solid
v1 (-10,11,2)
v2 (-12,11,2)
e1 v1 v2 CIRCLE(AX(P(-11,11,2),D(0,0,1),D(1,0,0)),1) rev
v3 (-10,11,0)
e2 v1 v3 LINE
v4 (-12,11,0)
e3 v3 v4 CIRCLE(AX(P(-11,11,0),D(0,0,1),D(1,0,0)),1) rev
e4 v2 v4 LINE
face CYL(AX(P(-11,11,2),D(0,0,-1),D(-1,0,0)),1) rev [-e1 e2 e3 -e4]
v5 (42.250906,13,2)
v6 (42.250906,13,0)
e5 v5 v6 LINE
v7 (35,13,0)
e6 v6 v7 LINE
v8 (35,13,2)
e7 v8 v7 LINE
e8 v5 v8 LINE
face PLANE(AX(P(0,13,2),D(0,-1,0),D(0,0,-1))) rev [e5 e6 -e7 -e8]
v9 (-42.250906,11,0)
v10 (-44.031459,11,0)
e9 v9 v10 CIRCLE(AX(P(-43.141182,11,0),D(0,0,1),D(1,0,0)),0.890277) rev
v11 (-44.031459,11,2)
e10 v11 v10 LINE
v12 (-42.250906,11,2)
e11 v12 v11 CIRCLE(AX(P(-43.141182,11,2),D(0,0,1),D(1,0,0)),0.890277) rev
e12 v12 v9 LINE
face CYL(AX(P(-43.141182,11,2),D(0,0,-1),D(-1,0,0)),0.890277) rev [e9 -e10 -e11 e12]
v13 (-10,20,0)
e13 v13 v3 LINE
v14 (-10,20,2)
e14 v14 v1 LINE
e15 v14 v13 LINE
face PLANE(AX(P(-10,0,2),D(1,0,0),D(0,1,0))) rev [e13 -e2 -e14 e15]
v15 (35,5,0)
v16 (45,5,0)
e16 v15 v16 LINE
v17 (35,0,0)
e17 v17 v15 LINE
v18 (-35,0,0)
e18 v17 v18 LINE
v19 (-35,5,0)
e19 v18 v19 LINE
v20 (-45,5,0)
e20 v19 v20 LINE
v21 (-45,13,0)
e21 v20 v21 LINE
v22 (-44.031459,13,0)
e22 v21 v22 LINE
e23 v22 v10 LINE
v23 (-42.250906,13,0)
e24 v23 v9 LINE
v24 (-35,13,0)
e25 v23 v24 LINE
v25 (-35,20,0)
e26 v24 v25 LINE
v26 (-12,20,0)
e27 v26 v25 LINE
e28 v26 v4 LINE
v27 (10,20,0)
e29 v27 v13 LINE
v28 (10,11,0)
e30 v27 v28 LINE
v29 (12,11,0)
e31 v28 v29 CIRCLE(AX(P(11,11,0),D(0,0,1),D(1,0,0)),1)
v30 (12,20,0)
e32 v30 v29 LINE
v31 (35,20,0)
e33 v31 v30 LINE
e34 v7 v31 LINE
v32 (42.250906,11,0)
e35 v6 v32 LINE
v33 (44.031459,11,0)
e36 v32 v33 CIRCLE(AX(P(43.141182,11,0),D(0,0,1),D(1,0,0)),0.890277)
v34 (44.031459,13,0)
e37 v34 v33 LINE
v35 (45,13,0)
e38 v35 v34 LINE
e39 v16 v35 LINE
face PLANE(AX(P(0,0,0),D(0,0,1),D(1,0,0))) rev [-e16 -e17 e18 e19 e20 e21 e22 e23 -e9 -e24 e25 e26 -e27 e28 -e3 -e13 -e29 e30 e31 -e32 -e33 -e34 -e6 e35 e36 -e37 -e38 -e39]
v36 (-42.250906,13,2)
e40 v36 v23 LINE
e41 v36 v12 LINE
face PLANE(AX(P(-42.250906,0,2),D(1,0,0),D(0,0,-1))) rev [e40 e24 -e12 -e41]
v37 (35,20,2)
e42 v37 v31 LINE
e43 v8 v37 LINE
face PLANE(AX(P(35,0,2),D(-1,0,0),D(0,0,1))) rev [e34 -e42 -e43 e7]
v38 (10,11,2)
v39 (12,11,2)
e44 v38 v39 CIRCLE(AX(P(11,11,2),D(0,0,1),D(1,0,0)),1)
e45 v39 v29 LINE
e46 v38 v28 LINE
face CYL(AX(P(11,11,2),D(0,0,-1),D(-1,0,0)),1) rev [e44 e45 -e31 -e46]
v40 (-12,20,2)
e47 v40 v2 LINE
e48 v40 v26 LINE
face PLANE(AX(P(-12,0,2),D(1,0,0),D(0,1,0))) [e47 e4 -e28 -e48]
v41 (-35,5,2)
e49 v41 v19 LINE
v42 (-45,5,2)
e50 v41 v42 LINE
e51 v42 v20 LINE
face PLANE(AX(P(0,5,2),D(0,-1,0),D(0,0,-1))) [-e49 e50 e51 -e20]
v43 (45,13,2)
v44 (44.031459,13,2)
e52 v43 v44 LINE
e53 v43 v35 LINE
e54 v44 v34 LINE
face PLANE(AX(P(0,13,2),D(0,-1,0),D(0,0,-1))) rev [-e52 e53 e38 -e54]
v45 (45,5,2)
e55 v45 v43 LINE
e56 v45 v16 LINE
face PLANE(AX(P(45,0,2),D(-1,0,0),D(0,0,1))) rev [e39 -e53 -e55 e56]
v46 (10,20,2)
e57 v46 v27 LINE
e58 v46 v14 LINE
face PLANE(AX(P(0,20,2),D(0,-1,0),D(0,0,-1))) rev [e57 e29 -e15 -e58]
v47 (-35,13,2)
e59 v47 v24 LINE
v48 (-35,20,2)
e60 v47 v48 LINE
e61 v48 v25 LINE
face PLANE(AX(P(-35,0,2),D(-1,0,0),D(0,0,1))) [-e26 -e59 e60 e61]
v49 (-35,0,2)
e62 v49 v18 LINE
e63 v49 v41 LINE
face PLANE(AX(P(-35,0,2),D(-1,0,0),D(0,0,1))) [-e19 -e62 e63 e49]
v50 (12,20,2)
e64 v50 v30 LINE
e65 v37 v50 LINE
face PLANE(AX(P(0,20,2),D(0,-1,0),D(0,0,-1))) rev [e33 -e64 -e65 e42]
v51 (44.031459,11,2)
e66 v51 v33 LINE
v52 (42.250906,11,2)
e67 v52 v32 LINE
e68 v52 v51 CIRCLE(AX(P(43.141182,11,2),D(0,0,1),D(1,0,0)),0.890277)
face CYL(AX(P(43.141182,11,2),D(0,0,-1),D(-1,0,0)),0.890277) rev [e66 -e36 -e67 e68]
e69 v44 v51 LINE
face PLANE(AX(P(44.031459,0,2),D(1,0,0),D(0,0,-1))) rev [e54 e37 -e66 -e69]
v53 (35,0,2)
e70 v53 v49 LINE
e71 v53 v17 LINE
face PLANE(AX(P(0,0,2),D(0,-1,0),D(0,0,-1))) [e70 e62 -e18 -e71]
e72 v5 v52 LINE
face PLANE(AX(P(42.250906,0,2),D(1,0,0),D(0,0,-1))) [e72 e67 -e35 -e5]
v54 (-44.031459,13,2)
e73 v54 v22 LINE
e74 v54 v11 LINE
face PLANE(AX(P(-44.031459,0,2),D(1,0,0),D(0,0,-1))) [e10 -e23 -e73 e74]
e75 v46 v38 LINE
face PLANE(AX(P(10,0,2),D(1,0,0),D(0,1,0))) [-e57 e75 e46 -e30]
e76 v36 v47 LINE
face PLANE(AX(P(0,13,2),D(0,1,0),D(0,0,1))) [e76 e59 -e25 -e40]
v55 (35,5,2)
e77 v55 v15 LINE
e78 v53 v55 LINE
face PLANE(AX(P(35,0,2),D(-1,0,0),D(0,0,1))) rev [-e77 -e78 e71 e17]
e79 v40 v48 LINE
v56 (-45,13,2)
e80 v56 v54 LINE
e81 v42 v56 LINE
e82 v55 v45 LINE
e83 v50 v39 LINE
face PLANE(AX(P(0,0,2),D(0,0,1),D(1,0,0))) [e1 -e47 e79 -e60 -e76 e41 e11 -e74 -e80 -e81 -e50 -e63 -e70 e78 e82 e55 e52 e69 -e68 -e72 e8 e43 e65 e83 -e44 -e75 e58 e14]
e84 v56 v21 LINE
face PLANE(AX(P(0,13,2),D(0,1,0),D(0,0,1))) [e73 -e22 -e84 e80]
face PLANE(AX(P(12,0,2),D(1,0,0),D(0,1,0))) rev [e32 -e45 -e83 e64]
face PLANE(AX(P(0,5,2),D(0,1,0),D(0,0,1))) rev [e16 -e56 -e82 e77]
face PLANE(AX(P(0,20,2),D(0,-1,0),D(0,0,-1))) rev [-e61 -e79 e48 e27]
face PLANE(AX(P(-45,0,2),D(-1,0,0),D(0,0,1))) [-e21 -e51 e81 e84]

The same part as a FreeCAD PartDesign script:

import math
import FreeCAD as App
import Part
import Sketcher

V = App.Vector
Q = App.Units.Quantity

doc = App.newDocument("Part")
body = doc.addObject("PartDesign::Body", "Body")

# Sketch on XY plane
sketch1 = doc.addObject("Sketcher::SketchObject", "Sketch")
body.addObject(sketch1)
sketch1.AttachmentSupport = (doc.XY_Plane, [""])
sketch1.MapMode = "FlatFace"
sketch1.addGeometry([
    Part.LineSegment(V(-35, 0, 0), V(35, 0, 0)),  # 0
    Part.LineSegment(V(35, 0, 0), V(35, 5, 0)),  # 1
    Part.LineSegment(V(35, 5, 0), V(45, 5, 0)),  # 2
    Part.LineSegment(V(45, 5, 0), V(45, 13, 0)),  # 3
    Part.LineSegment(V(45, 13, 0), V(44.031459, 13, 0)),  # 4
    Part.LineSegment(V(44.031459, 13, 0), V(44.031459, 11, 0)),  # 5
    Part.ArcOfCircle(Part.Circle(V(43.141182, 11, 0), V(0, 0, 1), 0.890277), math.radians(-180), math.radians(0)),  # 6
    Part.LineSegment(V(42.250906, 11, 0), V(42.250906, 13, 0)),  # 7
    Part.LineSegment(V(42.250906, 13, 0), V(35, 13, 0)),  # 8
    Part.LineSegment(V(35, 13, 0), V(35, 20, 0)),  # 9
    Part.LineSegment(V(35, 20, 0), V(12, 20, 0)),  # 10
    Part.LineSegment(V(12, 20, 0), V(12, 11, 0)),  # 11
    Part.ArcOfCircle(Part.Circle(V(11, 11, 0), V(0, 0, 1), 1), math.radians(180), math.radians(360)),  # 12
    Part.LineSegment(V(10, 11, 0), V(10, 20, 0)),  # 13
    Part.LineSegment(V(10, 20, 0), V(-10, 20, 0)),  # 14
    Part.LineSegment(V(-10, 20, 0), V(-10, 11, 0)),  # 15
    Part.ArcOfCircle(Part.Circle(V(-11, 11, 0), V(0, 0, 1), 1), math.radians(180), math.radians(360)),  # 16
    Part.LineSegment(V(-12, 11, 0), V(-12, 20, 0)),  # 17
    Part.LineSegment(V(-12, 20, 0), V(-35, 20, 0)),  # 18
    Part.LineSegment(V(-35, 20, 0), V(-35, 13, 0)),  # 19
    Part.LineSegment(V(-35, 13, 0), V(-42.250906, 13, 0)),  # 20
    Part.LineSegment(V(-42.250906, 13, 0), V(-42.250906, 11, 0)),  # 21
    Part.ArcOfCircle(Part.Circle(V(-43.141182, 11, 0), V(0, 0, 1), 0.890277), math.radians(-180), math.radians(0)),  # 22
    Part.LineSegment(V(-44.031459, 11, 0), V(-44.031459, 13, 0)),  # 23
    Part.LineSegment(V(-44.031459, 13, 0), V(-45, 13, 0)),  # 24
    Part.LineSegment(V(-45, 13, 0), V(-45, 5, 0)),  # 25
    Part.LineSegment(V(-45, 5, 0), V(-35, 5, 0)),  # 26
    Part.LineSegment(V(-35, 5, 0), V(-35, 0, 0)),  # 27
], False)
sketch1.addConstraint([
    Sketcher.Constraint("Coincident", 0, 2, 1, 1),
    Sketcher.Constraint("Coincident", 1, 2, 2, 1),
    Sketcher.Constraint("Coincident", 2, 2, 3, 1),
    Sketcher.Constraint("Coincident", 3, 2, 4, 1),
    Sketcher.Constraint("Coincident", 4, 2, 5, 1),
    Sketcher.Constraint("Tangent", 5, 2, 6, 2),
    Sketcher.Constraint("Tangent", 6, 1, 7, 1),
    Sketcher.Constraint("Coincident", 7, 2, 8, 1),
    Sketcher.Constraint("Coincident", 8, 2, 9, 1),
    Sketcher.Constraint("Coincident", 9, 2, 10, 1),
    Sketcher.Constraint("Coincident", 10, 2, 11, 1),
    Sketcher.Constraint("Tangent", 11, 2, 12, 2),
    Sketcher.Constraint("Tangent", 12, 1, 13, 1),
    Sketcher.Constraint("Coincident", 13, 2, 14, 1),
    Sketcher.Constraint("Coincident", 14, 2, 15, 1),
    Sketcher.Constraint("Tangent", 15, 2, 16, 2),
    Sketcher.Constraint("Tangent", 16, 1, 17, 1),
    Sketcher.Constraint("Coincident", 17, 2, 18, 1),
    Sketcher.Constraint("Coincident", 18, 2, 19, 1),
    Sketcher.Constraint("Coincident", 19, 2, 20, 1),
    Sketcher.Constraint("Coincident", 20, 2, 21, 1),
    Sketcher.Constraint("Tangent", 21, 2, 22, 2),
    Sketcher.Constraint("Tangent", 22, 1, 23, 1),
    Sketcher.Constraint("Coincident", 23, 2, 24, 1),
    Sketcher.Constraint("Coincident", 24, 2, 25, 1),
    Sketcher.Constraint("Coincident", 25, 2, 26, 1),
    Sketcher.Constraint("Coincident", 26, 2, 27, 1),
    Sketcher.Constraint("Coincident", 27, 2, 0, 1),
    Sketcher.Constraint("Horizontal", 0),
    Sketcher.Constraint("Vertical", 1),
    Sketcher.Constraint("Horizontal", 2),
    Sketcher.Constraint("Vertical", 3),
    Sketcher.Constraint("Horizontal", 4),
    Sketcher.Constraint("Vertical", 5),
    Sketcher.Constraint("Vertical", 7),
    Sketcher.Constraint("Horizontal", 8),
    Sketcher.Constraint("Vertical", 9),
    Sketcher.Constraint("Horizontal", 10),
    Sketcher.Constraint("Vertical", 11),
    Sketcher.Constraint("Vertical", 13),
    Sketcher.Constraint("Horizontal", 14),
    Sketcher.Constraint("Vertical", 15),
    Sketcher.Constraint("Vertical", 17),
    Sketcher.Constraint("Horizontal", 18),
    Sketcher.Constraint("Vertical", 19),
    Sketcher.Constraint("Horizontal", 20),
    Sketcher.Constraint("Vertical", 21),
    Sketcher.Constraint("Vertical", 23),
    Sketcher.Constraint("Horizontal", 24),
    Sketcher.Constraint("Vertical", 25),
    Sketcher.Constraint("Horizontal", 26),
    Sketcher.Constraint("Vertical", 27),
    Sketcher.Constraint("Equal", 12, 16),
    Sketcher.Constraint("Equal", 6, 22),
    Sketcher.Constraint("Symmetric", 0, 2, 27, 2, -1, 1),
    Sketcher.Constraint("Symmetric", 12, 3, 16, 3, -2),
    Sketcher.Constraint("Symmetric", 6, 3, 22, 3, -2),
    Sketcher.Constraint("Symmetric", 9, 2, 18, 2, -2),
    Sketcher.Constraint("Symmetric", 3, 2, 24, 2, -2),
    Sketcher.Constraint("Horizontal", 6, 3, 12, 3),
    Sketcher.Constraint("Horizontal", 4, 2, 7, 2),
    Sketcher.Constraint("Horizontal", 10, 2, 13, 2),
    Sketcher.Constraint("Horizontal", 8, 2, 19, 2),
    Sketcher.Constraint("Horizontal", 2, 2, 25, 2),
    Sketcher.Constraint("Vertical", 1, 2, 8, 2),
    Sketcher.Constraint("Radius", 12, Q("1 mm")),
    Sketcher.Constraint("DistanceX", 0, 1, 0, 2, Q("70 mm")),
    Sketcher.Constraint("DistanceX", 2, 1, 2, 2, Q("10 mm")),
    Sketcher.Constraint("DistanceX", 10, 2, 10, 1, Q("23 mm")),
    Sketcher.Constraint("DistanceY", 1, 1, 1, 2, Q("5 mm")),
    Sketcher.Constraint("DistanceY", 3, 1, 3, 2, Q("8 mm")),
    Sketcher.Constraint("DistanceY", 5, 2, 5, 1, Q("2 mm")),
    Sketcher.Constraint("DistanceY", 9, 1, 9, 2, Q("7 mm")),
    Sketcher.Constraint("Radius", 6, Q("0.890277 mm")),
    Sketcher.Constraint("DistanceX", 4, 2, 4, 1, Q("0.968541 mm")),
])
pad1 = doc.addObject("PartDesign::Pad", "Pad")
body.addObject(pad1)
pad1.Profile = sketch1
pad1.Length = 2

doc.recompute()
